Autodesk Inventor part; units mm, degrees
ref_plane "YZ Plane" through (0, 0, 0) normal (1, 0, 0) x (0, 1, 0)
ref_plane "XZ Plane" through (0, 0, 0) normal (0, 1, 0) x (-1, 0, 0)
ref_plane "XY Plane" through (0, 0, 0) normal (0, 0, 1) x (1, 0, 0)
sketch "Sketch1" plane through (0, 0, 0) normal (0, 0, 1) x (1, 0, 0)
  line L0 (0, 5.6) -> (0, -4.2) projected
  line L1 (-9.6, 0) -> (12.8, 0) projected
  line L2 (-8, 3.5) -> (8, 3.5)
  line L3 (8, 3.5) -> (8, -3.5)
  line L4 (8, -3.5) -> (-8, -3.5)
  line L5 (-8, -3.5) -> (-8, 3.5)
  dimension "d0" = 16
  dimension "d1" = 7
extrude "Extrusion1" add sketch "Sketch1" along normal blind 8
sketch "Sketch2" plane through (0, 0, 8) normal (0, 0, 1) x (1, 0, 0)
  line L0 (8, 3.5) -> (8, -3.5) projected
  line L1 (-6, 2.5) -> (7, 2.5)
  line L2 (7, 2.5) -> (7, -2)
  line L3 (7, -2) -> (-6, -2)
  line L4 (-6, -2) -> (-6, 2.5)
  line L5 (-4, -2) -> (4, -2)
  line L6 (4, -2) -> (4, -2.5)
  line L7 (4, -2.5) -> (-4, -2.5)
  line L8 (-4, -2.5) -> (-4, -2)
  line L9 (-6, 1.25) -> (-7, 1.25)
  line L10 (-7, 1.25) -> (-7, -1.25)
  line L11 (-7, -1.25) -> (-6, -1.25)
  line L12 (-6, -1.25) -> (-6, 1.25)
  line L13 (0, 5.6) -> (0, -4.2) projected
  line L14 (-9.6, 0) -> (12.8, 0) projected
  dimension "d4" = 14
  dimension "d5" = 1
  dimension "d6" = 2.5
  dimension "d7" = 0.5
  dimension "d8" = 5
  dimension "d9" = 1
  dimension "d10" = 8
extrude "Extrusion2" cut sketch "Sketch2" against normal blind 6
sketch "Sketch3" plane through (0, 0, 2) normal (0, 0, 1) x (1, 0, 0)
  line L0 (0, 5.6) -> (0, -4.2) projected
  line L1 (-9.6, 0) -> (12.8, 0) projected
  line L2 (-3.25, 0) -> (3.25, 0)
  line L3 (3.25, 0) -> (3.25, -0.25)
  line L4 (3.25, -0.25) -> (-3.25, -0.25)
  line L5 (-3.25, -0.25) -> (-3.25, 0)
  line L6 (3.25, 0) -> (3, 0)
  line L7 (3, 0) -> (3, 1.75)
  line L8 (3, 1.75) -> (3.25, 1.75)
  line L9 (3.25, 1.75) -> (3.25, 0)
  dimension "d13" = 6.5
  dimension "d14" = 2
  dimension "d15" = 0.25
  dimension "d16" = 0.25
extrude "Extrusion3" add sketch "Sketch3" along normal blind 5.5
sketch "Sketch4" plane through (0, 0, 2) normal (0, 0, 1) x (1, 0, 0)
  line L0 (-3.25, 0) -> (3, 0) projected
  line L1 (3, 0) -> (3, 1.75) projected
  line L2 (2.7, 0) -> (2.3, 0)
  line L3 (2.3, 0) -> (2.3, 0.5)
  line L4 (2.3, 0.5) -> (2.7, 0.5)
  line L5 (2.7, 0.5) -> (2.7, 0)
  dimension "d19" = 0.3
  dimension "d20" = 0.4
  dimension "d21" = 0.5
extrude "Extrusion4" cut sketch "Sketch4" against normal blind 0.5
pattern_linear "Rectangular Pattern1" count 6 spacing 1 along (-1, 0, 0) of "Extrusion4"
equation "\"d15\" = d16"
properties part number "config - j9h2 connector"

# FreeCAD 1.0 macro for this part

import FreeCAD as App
import Part
import Sketcher

V = App.Vector

doc = App.newDocument("Part")
body = doc.addObject("PartDesign::Body", "Body")

sketch1 = body.newObject("Sketcher::SketchObject", "Sketch")
sketch1.AttachmentSupport = (doc.getObject("XY_Plane"), [""])
sketch1.MapMode = "FlatFace"
sketch1.addGeometry(Part.LineSegment(V(8, 4, 0), V(-8, 4, 0)), False)
sketch1.addGeometry(Part.LineSegment(V(-8, 4, 0), V(-8, -4, 0)), False)
sketch1.addGeometry(Part.LineSegment(V(-8, -4, 0), V(8, -4, 0)), False)
sketch1.addGeometry(Part.LineSegment(V(8, -4, 0), V(8, 4, 0)), False)
sketch1.addConstraint(Sketcher.Constraint("Coincident", 0, 2, 1, 1))
sketch1.addConstraint(Sketcher.Constraint("Coincident", 1, 2, 2, 1))
sketch1.addConstraint(Sketcher.Constraint("Coincident", 2, 2, 3, 1))
sketch1.addConstraint(Sketcher.Constraint("Coincident", 3, 2, 0, 1))
sketch1.addConstraint(Sketcher.Constraint("Horizontal", 0))
sketch1.addConstraint(Sketcher.Constraint("Vertical", 1))
sketch1.addConstraint(Sketcher.Constraint("Horizontal", 2))
sketch1.addConstraint(Sketcher.Constraint("Vertical", 3))
sketch1.addConstraint(Sketcher.Constraint("Symmetric", 0, 2, 2, 2, -1, 1))
sketch1.addConstraint(Sketcher.Constraint("DistanceX", 0, 2, 0, 1, 16.0))
sketch1.addConstraint(Sketcher.Constraint("DistanceY", 1, 2, 1, 1, 7.0))
pad1 = body.newObject("PartDesign::Pad", "Pad")
pad1.Profile = sketch1
pad1.Length = 8

sketch2 = body.newObject("Sketcher::SketchObject", "Sketch001")
sketch2.AttachmentSupport = (doc.getObject("XY_Plane"), [""])
sketch2.MapMode = "FlatFace"
sketch2.AttachmentOffset = App.Placement(V(0, 0, 8), App.Rotation())
sketch2.addGeometry(Part.LineSegment(V(-6, 2.5, 0), V(-6, 1.2, 0)), False)
sketch2.addGeometry(Part.LineSegment(V(-6, 1.2, 0), V(-7, 1.2, 0)), False)
sketch2.addGeometry(Part.LineSegment(V(-7, 1.2, 0), V(-7, -1.2, 0)), False)
sketch2.addGeometry(Part.LineSegment(V(-7, -1.2, 0), V(-6, -1.2, 0)), False)
sketch2.addGeometry(Part.LineSegment(V(-6, -1.2, 0), V(-6, -2, 0)), False)
sketch2.addGeometry(Part.LineSegment(V(-6, -2, 0), V(-4, -2, 0)), False)
sketch2.addGeometry(Part.LineSegment(V(-4, -2, 0), V(-4, -2.5, 0)), False)
sketch2.addGeometry(Part.LineSegment(V(-4, -2.5, 0), V(4, -2.5, 0)), False)
sketch2.addGeometry(Part.LineSegment(V(4, -2.5, 0), V(4, -2, 0)), False)
sketch2.addGeometry(Part.LineSegment(V(4, -2, 0), V(7, -2, 0)), False)
sketch2.addGeometry(Part.LineSegment(V(7, -2, 0), V(7, 2.5, 0)), False)
sketch2.addGeometry(Part.LineSegment(V(7, 2.5, 0), V(-6, 2.5, 0)), False)
sketch2.addConstraint(Sketcher.Constraint("Coincident", 0, 2, 1, 1))
sketch2.addConstraint(Sketcher.Constraint("Coincident", 1, 2, 2, 1))
sketch2.addConstraint(Sketcher.Constraint("Coincident", 2, 2, 3, 1))
sketch2.addConstraint(Sketcher.Constraint("Coincident", 3, 2, 4, 1))
sketch2.addConstraint(Sketcher.Constraint("Coincident", 4, 2, 5, 1))
sketch2.addConstraint(Sketcher.Constraint("Coincident", 5, 2, 6, 1))
sketch2.addConstraint(Sketcher.Constraint("Coincident", 6, 2, 7, 1))
sketch2.addConstraint(Sketcher.Constraint("Coincident", 7, 2, 8, 1))
sketch2.addConstraint(Sketcher.Constraint("Coincident", 8, 2, 9, 1))
sketch2.addConstraint(Sketcher.Constraint("Coincident", 9, 2, 10, 1))
sketch2.addConstraint(Sketcher.Constraint("Coincident", 10, 2, 11, 1))
sketch2.addConstraint(Sketcher.Constraint("Coincident", 11, 2, 0, 1))
sketch2.addConstraint(Sketcher.Constraint("Vertical", 0))
sketch2.addConstraint(Sketcher.Constraint("Horizontal", 1))
sketch2.addConstraint(Sketcher.Constraint("Vertical", 2))
sketch2.addConstraint(Sketcher.Constraint("Horizontal", 3))
sketch2.addConstraint(Sketcher.Constraint("Vertical", 4))
sketch2.addConstraint(Sketcher.Constraint("Horizontal", 5))
sketch2.addConstraint(Sketcher.Constraint("Vertical", 6))
sketch2.addConstraint(Sketcher.Constraint("Horizontal", 7))
sketch2.addConstraint(Sketcher.Constraint("Vertical", 8))
sketch2.addConstraint(Sketcher.Constraint("Horizontal", 9))
sketch2.addConstraint(Sketcher.Constraint("Vertical", 10))
sketch2.addConstraint(Sketcher.Constraint("Horizontal", 11))
sketch2.addConstraint(Sketcher.Constraint("Symmetric", 5, 2, 8, 2, -2))
sketch2.addConstraint(Sketcher.Constraint("Symmetric", 0, 2, 3, 2, -1))
sketch2.addConstraint(Sketcher.Constraint("DistanceX", 1, 2, 1, 1, 1.0))
sketch2.addConstraint(Sketcher.Constraint("DistanceX", 7, 1, 7, 2, 8.0))
sketch2.addConstraint(Sketcher.Constraint("DistanceY", 2, 2, 2, 1, 2.5))
sketch2.addConstraint(Sketcher.Constraint("DistanceY", 6, 2, 6, 1, 0.5))
sketch2.addConstraint(Sketcher.Constraint("DistanceY", 7, 2, 10, 2, 5.0))
sketch2.addConstraint(Sketcher.Constraint("DistanceY", 6, 2, -1, 1, 2.5))
sketch2.addConstraint(Sketcher.Constraint("DistanceX", 5, 1, 5, 2, 2.0))
sketch2.addConstraint(Sketcher.Constraint("DistanceX", 9, 1, 9, 2, 3.0))
pocket1 = body.newObject("PartDesign::Pocket", "Pocket")
pocket1.Profile = sketch2
pocket1.Length = 6

sketch3 = body.newObject("Sketcher::SketchObject", "Sketch002")
sketch3.AttachmentSupport = (doc.getObject("XY_Plane"), [""])
sketch3.MapMode = "FlatFace"
sketch3.AttachmentOffset = App.Placement(V(0, 0, 2), App.Rotation())
sketch3.addGeometry(Part.LineSegment(V(3, 0, 0), V(-3.25, 0, 0)), False)
sketch3.addGeometry(Part.LineSegment(V(-3.25, 0, 0), V(-3.25, -0.25, 0)), False)
sketch3.addGeometry(Part.LineSegment(V(-3.25, -0.25, 0), V(3.25, -0.25, 0)), False)
sketch3.addGeometry(Part.LineSegment(V(3.25, -0.25, 0), V(3.25, 1.75, 0)), False)
sketch3.addGeometry(Part.LineSegment(V(3.25, 1.75, 0), V(3, 1.75, 0)), False)
sketch3.addGeometry(Part.LineSegment(V(3, 1.75, 0), V(3, 0, 0)), False)
sketch3.addConstraint(Sketcher.Constraint("Coincident", 0, 2, 1, 1))
sketch3.addConstraint(Sketcher.Constraint("Coincident", 1, 2, 2, 1))
sketch3.addConstraint(Sketcher.Constraint("Coincident", 2, 2, 3, 1))
sketch3.addConstraint(Sketcher.Constraint("Coincident", 3, 2, 4, 1))
sketch3.addConstraint(Sketcher.Constraint("Coincident", 4, 2, 5, 1))
sketch3.addConstraint(Sketcher.Constraint("Coincident", 5, 2, 0, 1))
sketch3.addConstraint(Sketcher.Constraint("Horizontal", 0))
sketch3.addConstraint(Sketcher.Constraint("Vertical", 1))
sketch3.addConstraint(Sketcher.Constraint("Horizontal", 2))
sketch3.addConstraint(Sketcher.Constraint("Vertical", 3))
sketch3.addConstraint(Sketcher.Constraint("Horizontal", 4))
sketch3.addConstraint(Sketcher.Constraint("Vertical", 5))
sketch3.addConstraint(Sketcher.Constraint("PointOnObject", 0, 2, -1))
sketch3.addConstraint(Sketcher.Constraint("Equal", 4, 1))
sketch3.addConstraint(Sketcher.Constraint("DistanceY", 3, 1, 3, 2, 2.0))
sketch3.addConstraint(Sketcher.Constraint("DistanceX", 2, 1, 2, 2, 6.5))
sketch3.addConstraint(Sketcher.Constraint("DistanceX", 4, 2, 4, 1, 0.25))
sketch3.addConstraint(Sketcher.Constraint("DistanceX", -1, 1, 4, 2, 3.0))
pad2 = body.newObject("PartDesign::Pad", "Pad001")
pad2.Profile = sketch3
pad2.Length = 5.5

sketch4 = body.newObject("Sketcher::SketchObject", "Sketch003")
sketch4.AttachmentSupport = (doc.getObject("XY_Plane"), [""])
sketch4.MapMode = "FlatFace"
sketch4.AttachmentOffset = App.Placement(V(0, 0, 2), App.Rotation())
sketch4.addGeometry(Part.LineSegment(V(2.3, 0.5, 0), V(2.3, 0, 0)), False)
sketch4.addGeometry(Part.LineSegment(V(2.3, 0, 0), V(2.7, 0, 0)), False)
sketch4.addGeometry(Part.LineSegment(V(2.7, 0, 0), V(2.7, 0.5, 0)), False)
sketch4.addGeometry(Part.LineSegment(V(2.7, 0.5, 0), V(2.3, 0.5, 0)), False)
sketch4.addConstraint(Sketcher.Constraint("Coincident", 0, 2, 1, 1))
sketch4.addConstraint(Sketcher.Constraint("Coincident", 1, 2, 2, 1))
sketch4.addConstraint(Sketcher.Constraint("Coincident", 2, 2, 3, 1))
sketch4.addConstraint(Sketcher.Constraint("Coincident", 3, 2, 0, 1))
sketch4.addConstraint(Sketcher.Constraint("Vertical", 0))
sketch4.addConstraint(Sketcher.Constraint("Horizontal", 1))
sketch4.addConstraint(Sketcher.Constraint("Vertical", 2))
sketch4.addConstraint(Sketcher.Constraint("Horizontal", 3))
sketch4.addConstraint(Sketcher.Constraint("PointOnObject", 0, 2, -1))
sketch4.addConstraint(Sketcher.Constraint("DistanceX", 1, 1, 1, 2, 0.4))
sketch4.addConstraint(Sketcher.Constraint("DistanceY", 0, 2, 0, 1, 0.5))
sketch4.addConstraint(Sketcher.Constraint("DistanceX", -1, 1, 0, 2, 2.3))
pocket2 = body.newObject("PartDesign::Pocket", "Pocket001")
pocket2.Profile = sketch4
pocket2.Length = 0.5
doc.recompute()

linearpattern = body.newObject("PartDesign::LinearPattern", "LinearPattern")
linearpattern.Originals = [pocket2]
linearpattern.Direction = (doc.getObject("X_Axis"), [""])
linearpattern.Mode = "offset"
linearpattern.Offset = 1
linearpattern.Occurrences = 6
linearpattern.Reversed = True
body.Tip = linearpattern

doc.recompute()
